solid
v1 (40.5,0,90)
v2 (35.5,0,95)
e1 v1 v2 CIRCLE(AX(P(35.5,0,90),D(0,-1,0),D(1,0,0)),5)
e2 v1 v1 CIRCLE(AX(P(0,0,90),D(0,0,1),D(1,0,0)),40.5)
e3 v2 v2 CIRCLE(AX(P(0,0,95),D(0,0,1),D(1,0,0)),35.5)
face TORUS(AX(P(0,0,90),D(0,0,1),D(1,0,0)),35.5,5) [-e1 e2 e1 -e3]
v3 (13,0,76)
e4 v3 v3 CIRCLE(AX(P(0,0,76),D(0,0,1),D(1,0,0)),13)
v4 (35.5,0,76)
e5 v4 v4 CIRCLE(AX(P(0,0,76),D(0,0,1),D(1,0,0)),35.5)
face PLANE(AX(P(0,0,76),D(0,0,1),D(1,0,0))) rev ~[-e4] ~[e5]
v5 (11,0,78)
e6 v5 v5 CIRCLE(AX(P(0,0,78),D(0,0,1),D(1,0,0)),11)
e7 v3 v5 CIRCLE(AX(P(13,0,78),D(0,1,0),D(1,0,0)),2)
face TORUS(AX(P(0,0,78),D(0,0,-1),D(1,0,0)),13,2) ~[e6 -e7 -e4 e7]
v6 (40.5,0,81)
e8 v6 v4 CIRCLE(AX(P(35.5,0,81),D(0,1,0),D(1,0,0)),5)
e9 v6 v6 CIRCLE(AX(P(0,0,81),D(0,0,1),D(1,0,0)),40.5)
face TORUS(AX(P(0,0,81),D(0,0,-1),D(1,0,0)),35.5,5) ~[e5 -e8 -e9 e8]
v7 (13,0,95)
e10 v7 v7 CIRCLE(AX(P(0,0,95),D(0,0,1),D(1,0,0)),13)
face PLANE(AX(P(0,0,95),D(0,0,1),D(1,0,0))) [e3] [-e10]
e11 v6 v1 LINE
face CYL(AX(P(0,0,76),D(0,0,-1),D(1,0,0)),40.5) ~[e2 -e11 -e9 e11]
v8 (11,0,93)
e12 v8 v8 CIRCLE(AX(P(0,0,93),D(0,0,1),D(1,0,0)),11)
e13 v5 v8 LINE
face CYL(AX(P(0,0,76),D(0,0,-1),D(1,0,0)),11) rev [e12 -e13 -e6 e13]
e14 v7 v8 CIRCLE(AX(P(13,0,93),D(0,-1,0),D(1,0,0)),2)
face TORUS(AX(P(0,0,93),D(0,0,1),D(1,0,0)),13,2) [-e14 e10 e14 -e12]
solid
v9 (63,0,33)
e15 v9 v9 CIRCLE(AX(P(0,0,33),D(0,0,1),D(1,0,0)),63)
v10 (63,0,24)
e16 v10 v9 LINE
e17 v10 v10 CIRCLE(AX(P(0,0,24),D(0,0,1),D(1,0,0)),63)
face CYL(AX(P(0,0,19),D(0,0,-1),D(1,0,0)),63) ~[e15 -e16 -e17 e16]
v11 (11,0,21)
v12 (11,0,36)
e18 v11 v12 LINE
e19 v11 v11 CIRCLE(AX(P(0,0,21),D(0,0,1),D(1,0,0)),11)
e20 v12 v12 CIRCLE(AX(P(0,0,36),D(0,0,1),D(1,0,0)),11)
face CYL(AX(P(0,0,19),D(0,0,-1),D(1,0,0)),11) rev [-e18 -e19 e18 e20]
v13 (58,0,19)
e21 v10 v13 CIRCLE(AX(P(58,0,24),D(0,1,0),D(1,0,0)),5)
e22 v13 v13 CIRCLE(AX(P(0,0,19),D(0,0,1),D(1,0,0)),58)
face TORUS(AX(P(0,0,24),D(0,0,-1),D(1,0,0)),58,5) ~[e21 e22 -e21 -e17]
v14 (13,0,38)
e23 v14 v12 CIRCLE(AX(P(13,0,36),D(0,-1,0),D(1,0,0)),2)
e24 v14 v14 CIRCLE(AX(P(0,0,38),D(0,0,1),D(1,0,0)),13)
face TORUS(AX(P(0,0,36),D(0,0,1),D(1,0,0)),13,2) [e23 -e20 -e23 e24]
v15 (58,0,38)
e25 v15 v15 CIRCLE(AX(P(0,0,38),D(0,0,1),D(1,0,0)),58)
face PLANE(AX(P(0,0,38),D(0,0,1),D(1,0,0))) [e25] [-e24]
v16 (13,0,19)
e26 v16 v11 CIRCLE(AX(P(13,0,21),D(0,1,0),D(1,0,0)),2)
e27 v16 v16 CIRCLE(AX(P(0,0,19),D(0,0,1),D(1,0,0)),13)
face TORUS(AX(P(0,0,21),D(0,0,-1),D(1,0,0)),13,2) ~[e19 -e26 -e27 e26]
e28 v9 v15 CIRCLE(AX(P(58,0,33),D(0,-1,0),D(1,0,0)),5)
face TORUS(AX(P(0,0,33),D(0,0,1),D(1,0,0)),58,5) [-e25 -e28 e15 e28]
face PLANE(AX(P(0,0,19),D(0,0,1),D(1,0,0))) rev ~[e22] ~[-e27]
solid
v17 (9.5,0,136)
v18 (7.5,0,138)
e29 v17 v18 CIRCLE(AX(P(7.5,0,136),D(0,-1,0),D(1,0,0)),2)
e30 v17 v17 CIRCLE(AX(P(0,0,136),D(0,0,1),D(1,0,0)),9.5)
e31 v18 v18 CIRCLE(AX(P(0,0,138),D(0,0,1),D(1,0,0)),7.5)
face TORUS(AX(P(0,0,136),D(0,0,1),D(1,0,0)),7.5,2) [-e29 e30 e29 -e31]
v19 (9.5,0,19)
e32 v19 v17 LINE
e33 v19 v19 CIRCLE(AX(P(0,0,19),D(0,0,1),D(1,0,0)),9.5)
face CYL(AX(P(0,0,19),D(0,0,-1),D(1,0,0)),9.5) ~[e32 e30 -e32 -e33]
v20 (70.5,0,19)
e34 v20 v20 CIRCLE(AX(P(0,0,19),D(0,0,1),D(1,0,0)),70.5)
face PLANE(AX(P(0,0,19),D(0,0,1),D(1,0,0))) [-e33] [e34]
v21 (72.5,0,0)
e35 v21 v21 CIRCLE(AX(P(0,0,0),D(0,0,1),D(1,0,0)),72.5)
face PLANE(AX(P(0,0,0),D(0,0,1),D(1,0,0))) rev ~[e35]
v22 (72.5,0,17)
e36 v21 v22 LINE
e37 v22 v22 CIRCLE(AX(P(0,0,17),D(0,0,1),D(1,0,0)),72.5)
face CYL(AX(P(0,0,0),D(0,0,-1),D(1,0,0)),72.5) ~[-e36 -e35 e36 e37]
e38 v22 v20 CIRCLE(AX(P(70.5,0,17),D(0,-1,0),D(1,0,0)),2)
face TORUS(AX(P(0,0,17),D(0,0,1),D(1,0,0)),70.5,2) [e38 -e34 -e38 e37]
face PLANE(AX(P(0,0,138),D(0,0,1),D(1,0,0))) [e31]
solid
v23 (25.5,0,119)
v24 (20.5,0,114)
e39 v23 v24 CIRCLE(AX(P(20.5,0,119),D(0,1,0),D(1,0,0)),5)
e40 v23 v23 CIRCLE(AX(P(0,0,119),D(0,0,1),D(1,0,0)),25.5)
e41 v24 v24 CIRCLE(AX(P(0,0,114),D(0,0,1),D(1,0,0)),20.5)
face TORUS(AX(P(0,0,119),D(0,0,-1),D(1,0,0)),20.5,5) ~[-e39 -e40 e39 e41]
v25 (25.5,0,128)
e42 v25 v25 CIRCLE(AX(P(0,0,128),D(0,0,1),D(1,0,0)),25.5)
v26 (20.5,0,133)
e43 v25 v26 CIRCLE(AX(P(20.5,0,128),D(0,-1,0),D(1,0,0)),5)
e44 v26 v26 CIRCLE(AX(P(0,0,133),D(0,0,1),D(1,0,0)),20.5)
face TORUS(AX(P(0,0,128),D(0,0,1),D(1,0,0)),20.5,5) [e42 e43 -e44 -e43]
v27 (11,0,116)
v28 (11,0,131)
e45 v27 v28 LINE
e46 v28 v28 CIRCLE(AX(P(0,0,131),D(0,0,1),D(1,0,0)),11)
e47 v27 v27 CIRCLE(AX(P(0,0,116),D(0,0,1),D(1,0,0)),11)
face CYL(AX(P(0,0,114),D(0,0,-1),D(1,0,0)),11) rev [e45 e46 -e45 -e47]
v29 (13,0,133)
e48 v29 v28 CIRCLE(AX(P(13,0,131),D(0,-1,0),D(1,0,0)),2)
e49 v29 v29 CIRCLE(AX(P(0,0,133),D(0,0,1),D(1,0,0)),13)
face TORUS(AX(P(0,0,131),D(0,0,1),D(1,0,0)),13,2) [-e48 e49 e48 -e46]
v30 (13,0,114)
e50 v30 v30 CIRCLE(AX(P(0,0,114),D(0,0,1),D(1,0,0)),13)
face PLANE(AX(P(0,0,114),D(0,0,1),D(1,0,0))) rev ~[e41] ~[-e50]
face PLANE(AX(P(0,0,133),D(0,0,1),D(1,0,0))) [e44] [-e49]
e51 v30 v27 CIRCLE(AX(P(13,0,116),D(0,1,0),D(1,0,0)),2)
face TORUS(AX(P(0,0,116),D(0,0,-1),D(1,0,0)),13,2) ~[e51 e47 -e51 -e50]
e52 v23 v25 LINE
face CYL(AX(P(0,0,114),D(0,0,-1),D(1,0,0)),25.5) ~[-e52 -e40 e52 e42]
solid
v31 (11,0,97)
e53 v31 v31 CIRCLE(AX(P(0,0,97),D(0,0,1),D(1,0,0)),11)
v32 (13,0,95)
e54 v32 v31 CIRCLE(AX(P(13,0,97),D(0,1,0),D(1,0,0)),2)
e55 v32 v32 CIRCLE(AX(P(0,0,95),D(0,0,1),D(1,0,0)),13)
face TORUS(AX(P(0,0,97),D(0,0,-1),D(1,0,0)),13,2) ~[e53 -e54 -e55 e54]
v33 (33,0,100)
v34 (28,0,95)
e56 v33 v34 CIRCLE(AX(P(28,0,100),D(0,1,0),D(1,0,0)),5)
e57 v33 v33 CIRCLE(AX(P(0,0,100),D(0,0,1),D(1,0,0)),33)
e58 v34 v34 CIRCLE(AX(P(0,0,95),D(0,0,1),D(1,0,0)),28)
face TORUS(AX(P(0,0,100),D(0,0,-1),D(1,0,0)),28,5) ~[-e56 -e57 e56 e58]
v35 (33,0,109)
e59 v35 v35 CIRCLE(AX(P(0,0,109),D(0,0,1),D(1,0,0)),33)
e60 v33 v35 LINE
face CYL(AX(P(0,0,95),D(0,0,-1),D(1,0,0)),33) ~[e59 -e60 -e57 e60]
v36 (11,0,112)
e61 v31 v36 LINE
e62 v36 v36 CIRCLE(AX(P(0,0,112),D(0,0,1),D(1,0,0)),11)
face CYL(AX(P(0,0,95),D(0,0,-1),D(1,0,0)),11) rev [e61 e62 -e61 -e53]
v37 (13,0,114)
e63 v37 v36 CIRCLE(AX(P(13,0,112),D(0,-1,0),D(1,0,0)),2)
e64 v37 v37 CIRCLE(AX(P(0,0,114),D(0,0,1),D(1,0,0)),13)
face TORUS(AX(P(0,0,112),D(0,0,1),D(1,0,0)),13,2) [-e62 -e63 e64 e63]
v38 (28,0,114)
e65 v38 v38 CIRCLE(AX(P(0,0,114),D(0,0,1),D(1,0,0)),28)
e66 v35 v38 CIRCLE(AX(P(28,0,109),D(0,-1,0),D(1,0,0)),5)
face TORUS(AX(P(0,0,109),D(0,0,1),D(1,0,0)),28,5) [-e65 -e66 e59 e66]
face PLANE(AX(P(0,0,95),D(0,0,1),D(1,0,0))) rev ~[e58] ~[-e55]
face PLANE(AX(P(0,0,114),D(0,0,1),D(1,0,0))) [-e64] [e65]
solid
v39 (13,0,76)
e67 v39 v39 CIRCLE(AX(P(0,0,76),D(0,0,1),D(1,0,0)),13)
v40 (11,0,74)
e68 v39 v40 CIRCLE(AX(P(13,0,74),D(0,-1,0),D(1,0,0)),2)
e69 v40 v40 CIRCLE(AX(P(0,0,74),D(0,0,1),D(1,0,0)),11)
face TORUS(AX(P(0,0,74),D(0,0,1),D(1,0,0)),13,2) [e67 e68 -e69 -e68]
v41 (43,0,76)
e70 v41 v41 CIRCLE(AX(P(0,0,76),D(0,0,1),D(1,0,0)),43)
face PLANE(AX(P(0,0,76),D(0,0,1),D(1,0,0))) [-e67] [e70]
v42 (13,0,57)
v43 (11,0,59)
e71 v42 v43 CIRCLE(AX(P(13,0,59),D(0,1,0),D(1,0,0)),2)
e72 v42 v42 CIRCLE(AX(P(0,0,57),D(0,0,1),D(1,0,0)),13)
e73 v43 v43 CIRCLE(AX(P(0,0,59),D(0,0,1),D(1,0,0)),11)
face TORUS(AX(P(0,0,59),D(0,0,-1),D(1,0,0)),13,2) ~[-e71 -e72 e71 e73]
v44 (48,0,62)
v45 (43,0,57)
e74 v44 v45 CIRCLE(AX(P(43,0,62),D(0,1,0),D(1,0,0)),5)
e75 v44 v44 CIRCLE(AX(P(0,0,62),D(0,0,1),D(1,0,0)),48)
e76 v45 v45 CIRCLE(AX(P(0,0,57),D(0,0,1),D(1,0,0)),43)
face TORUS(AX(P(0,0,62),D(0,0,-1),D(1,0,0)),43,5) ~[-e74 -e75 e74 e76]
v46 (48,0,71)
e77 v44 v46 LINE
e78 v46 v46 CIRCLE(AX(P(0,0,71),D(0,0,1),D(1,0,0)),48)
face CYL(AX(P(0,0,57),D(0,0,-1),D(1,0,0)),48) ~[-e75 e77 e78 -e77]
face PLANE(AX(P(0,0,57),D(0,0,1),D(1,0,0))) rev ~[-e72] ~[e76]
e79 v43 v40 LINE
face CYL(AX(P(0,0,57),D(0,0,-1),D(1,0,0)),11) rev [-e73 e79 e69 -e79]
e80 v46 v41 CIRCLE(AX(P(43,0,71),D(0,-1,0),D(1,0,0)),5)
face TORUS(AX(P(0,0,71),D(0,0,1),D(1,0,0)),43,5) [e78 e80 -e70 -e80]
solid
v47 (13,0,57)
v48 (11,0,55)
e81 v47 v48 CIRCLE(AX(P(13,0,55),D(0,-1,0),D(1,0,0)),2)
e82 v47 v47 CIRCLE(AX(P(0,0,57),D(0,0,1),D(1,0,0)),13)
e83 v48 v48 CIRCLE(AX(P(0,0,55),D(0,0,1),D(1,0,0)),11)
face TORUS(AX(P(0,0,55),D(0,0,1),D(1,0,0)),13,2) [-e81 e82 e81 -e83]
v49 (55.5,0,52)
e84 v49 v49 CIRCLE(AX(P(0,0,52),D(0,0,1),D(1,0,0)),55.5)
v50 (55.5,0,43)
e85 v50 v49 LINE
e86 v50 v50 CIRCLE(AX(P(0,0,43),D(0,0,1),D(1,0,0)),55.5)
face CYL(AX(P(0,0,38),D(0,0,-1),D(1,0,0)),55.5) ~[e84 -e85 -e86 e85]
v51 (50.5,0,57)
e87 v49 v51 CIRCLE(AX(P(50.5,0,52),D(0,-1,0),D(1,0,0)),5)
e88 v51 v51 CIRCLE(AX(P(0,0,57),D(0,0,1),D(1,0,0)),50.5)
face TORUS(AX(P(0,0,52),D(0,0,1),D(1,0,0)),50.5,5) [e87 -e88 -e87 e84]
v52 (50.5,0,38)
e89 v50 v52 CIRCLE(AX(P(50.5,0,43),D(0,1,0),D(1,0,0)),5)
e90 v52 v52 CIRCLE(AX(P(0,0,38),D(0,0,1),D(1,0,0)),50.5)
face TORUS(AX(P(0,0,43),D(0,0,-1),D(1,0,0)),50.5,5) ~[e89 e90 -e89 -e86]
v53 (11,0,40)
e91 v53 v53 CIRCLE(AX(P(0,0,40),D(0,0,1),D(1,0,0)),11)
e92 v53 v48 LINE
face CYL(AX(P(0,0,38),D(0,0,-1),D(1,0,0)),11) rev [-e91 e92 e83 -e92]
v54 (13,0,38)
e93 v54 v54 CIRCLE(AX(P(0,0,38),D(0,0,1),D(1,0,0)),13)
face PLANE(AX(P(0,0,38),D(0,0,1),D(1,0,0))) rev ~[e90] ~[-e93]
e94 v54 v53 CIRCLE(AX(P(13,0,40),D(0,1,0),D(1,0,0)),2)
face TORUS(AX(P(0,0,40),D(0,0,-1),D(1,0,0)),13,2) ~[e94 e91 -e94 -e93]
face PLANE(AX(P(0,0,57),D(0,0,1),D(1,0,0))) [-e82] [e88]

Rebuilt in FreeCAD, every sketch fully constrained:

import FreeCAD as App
import Part
import Sketcher
Q = App.Units.Quantity


def edges_at(feature, points):
    """Names of the edges that pass closest to the given points."""
    edges = feature.Shape.Edges
    near = lambda p: min(range(len(edges)), key=lambda i: edges[i].distToShape(Part.Vertex(*p))[0])
    return sorted({f"Edge{near(p) + 1}" for p in points})

doc = App.newDocument("Part")
body = doc.addObject("PartDesign::Body", "Body")

# Sketch on XY plane
sketch1 = body.newObject("Sketcher::SketchObject", "Sketch")
sketch1.AttachmentSupport = (doc.getObject("XY_Plane"), [""])
sketch1.MapMode = "FlatFace"
sketch1.addGeometry(Part.Circle(App.Vector(0, 0, 0), App.Vector(0, 0, 1), 72.5), False)
sketch1.addConstraint(Sketcher.Constraint("Coincident", 0, 3, -1, 1))
sketch1.addConstraint(Sketcher.Constraint("Diameter", 0, Q("145 mm")))
pad1 = body.newObject("PartDesign::Pad", "Pad")
pad1.Profile = sketch1
pad1.Length = 19

# Sketch on XY plane
sketch2 = body.newObject("Sketcher::SketchObject", "Sketch001")
sketch2.AttachmentSupport = (doc.getObject("XY_Plane"), [""])
sketch2.MapMode = "FlatFace"
sketch2.AttachmentOffset = App.Placement(App.Vector(0, 0, 19), App.Rotation())
sketch2.addGeometry(Part.Circle(App.Vector(0, 0, 0), App.Vector(0, 0, 1), 9.5), False)
sketch2.addConstraint(Sketcher.Constraint("Coincident", 0, 3, -1, 1))
sketch2.addConstraint(Sketcher.Constraint("Diameter", 0, Q("19 mm")))
pad2 = body.newObject("PartDesign::Pad", "Pad001")
pad2.Profile = sketch2
pad2.Length = 119
doc.recompute()

fillet = body.newObject("PartDesign::Fillet", "Fillet")
fillet.Base = (pad2, edges_at(pad2, [(-72.5, 0, 19), (-9.5, 0, 138)]))
fillet.Radius = 2
body2 = doc.addObject("PartDesign::Body", "Body001")

# Sketch on XY plane
sketch3 = body2.newObject("Sketcher::SketchObject", "Sketch002")
sketch3.AttachmentSupport = (doc.getObject("XY_Plane001"), [""])
sketch3.MapMode = "FlatFace"
sketch3.AttachmentOffset = App.Placement(App.Vector(0, 0, 19), App.Rotation())
sketch3.addGeometry(Part.Circle(App.Vector(0, 0, 0), App.Vector(0, 0, 1), 63), False)
sketch3.addGeometry(Part.Circle(App.Vector(0, 0, 0), App.Vector(0, 0, 1), 11), False)
sketch3.addConstraint(Sketcher.Constraint("Coincident", 0, 3, -1, 1))
sketch3.addConstraint(Sketcher.Constraint("Coincident", 1, 3, -1, 1))
sketch3.addConstraint(Sketcher.Constraint("Diameter", 0, Q("126 mm")))
sketch3.addConstraint(Sketcher.Constraint("Diameter", 1, Q("22 mm")))
pad3 = body2.newObject("PartDesign::Pad", "Pad002")
pad3.Profile = sketch3
pad3.Length = 19
doc.recompute()

fillet2 = body2.newObject("PartDesign::Fillet", "Fillet001")
fillet2.Base = (pad3, edges_at(pad3, [(63, 0, 28.5), (-63, 0, 19), (-63, 0, 38)]))
fillet2.Radius = 5
doc.recompute()

fillet3 = body2.newObject("PartDesign::Fillet", "Fillet002")
fillet3.Base = (fillet2, edges_at(fillet2, [(11, 0, 28.5), (-11, 0, 19), (-11, 0, 38)]))
fillet3.Radius = 2
body3 = doc.addObject("PartDesign::Body", "Body002")

# Sketch on XY plane
sketch4 = body3.newObject("Sketcher::SketchObject", "Sketch003")
sketch4.AttachmentSupport = (doc.getObject("XY_Plane002"), [""])
sketch4.MapMode = "FlatFace"
sketch4.AttachmentOffset = App.Placement(App.Vector(0, 0, 38), App.Rotation())
sketch4.addGeometry(Part.Circle(App.Vector(0, 0, 0), App.Vector(0, 0, 1), 55.5), False)
sketch4.addGeometry(Part.Circle(App.Vector(0, 0, 0), App.Vector(0, 0, 1), 11), False)
sketch4.addConstraint(Sketcher.Constraint("Coincident", 0, 3, -1, 1))
sketch4.addConstraint(Sketcher.Constraint("Coincident", 1, 3, -1, 1))
sketch4.addConstraint(Sketcher.Constraint("Diameter", 0, Q("111 mm")))
sketch4.addConstraint(Sketcher.Constraint("Diameter", 1, Q("22 mm")))
pad4 = body3.newObject("PartDesign::Pad", "Pad003")
pad4.Profile = sketch4
pad4.Length = 19
doc.recompute()

fillet4 = body3.newObject("PartDesign::Fillet", "Fillet003")
fillet4.Base = (pad4, edges_at(pad4, [(55.5, 0, 47.5), (-55.5, 0, 38), (-55.5, 0, 57)]))
fillet4.Radius = 5
doc.recompute()

fillet5 = body3.newObject("PartDesign::Fillet", "Fillet004")
fillet5.Base = (fillet4, edges_at(fillet4, [(-11, 0, 38), (11, 0, 47.5), (-11, 0, 57)]))
fillet5.Radius = 2
body4 = doc.addObject("PartDesign::Body", "Body003")

# Sketch on XY plane
sketch5 = body4.newObject("Sketcher::SketchObject", "Sketch004")
sketch5.AttachmentSupport = (doc.getObject("XY_Plane003"), [""])
sketch5.MapMode = "FlatFace"
sketch5.AttachmentOffset = App.Placement(App.Vector(0, 0, 57), App.Rotation())
sketch5.addGeometry(Part.Circle(App.Vector(0, 0, 0), App.Vector(0, 0, 1), 48), False)
sketch5.addGeometry(Part.Circle(App.Vector(0, 0, 0), App.Vector(0, 0, 1), 11), False)
sketch5.addConstraint(Sketcher.Constraint("Coincident", 0, 3, -1, 1))
sketch5.addConstraint(Sketcher.Constraint("Coincident", 1, 3, -1, 1))
sketch5.addConstraint(Sketcher.Constraint("Diameter", 0, Q("96 mm")))
sketch5.addConstraint(Sketcher.Constraint("Diameter", 1, Q("22 mm")))
pad5 = body4.newObject("PartDesign::Pad", "Pad004")
pad5.Profile = sketch5
pad5.Length = 19
doc.recompute()

fillet6 = body4.newObject("PartDesign::Fillet", "Fillet005")
fillet6.Base = (pad5, edges_at(pad5, [(48, 0, 66.5), (-48, 0, 57), (-48, 0, 76)]))
fillet6.Radius = 5
doc.recompute()

fillet7 = body4.newObject("PartDesign::Fillet", "Fillet006")
fillet7.Base = (fillet6, edges_at(fillet6, [(-11, 0, 57), (-11, 0, 76), (11, 0, 66.5)]))
fillet7.Radius = 2
body5 = doc.addObject("PartDesign::Body", "Body004")

# Sketch on XY plane
sketch6 = body5.newObject("Sketcher::SketchObject", "Sketch005")
sketch6.AttachmentSupport = (doc.getObject("XY_Plane004"), [""])
sketch6.MapMode = "FlatFace"
sketch6.AttachmentOffset = App.Placement(App.Vector(0, 0, 76), App.Rotation())
sketch6.addGeometry(Part.Circle(App.Vector(0, 0, 0), App.Vector(0, 0, 1), 40.5), False)
sketch6.addGeometry(Part.Circle(App.Vector(0, 0, 0), App.Vector(0, 0, 1), 11), False)
sketch6.addConstraint(Sketcher.Constraint("Coincident", 0, 3, -1, 1))
sketch6.addConstraint(Sketcher.Constraint("Coincident", 1, 3, -1, 1))
sketch6.addConstraint(Sketcher.Constraint("Diameter", 0, Q("81 mm")))
sketch6.addConstraint(Sketcher.Constraint("Diameter", 1, Q("22 mm")))
pad6 = body5.newObject("PartDesign::Pad", "Pad005")
pad6.Profile = sketch6
pad6.Length = 19
doc.recompute()

fillet8 = body5.newObject("PartDesign::Fillet", "Fillet007")
fillet8.Base = (pad6, edges_at(pad6, [(40.5, 0, 85.5), (-40.5, 0, 76), (-40.5, 0, 95)]))
fillet8.Radius = 5
doc.recompute()

fillet9 = body5.newObject("PartDesign::Fillet", "Fillet008")
fillet9.Base = (fillet8, edges_at(fillet8, [(-11, 0, 95), (11, 0, 85.5), (-11, 0, 76)]))
fillet9.Radius = 2
body6 = doc.addObject("PartDesign::Body", "Body005")

# Sketch on XY plane
sketch7 = body6.newObject("Sketcher::SketchObject", "Sketch006")
sketch7.AttachmentSupport = (doc.getObject("XY_Plane005"), [""])
sketch7.MapMode = "FlatFace"
sketch7.AttachmentOffset = App.Placement(App.Vector(0, 0, 95), App.Rotation())
sketch7.addGeometry(Part.Circle(App.Vector(0, 0, 0), App.Vector(0, 0, 1), 33), False)
sketch7.addGeometry(Part.Circle(App.Vector(0, 0, 0), App.Vector(0, 0, 1), 11), False)
sketch7.addConstraint(Sketcher.Constraint("Coincident", 0, 3, -1, 1))
sketch7.addConstraint(Sketcher.Constraint("Coincident", 1, 3, -1, 1))
sketch7.addConstraint(Sketcher.Constraint("Diameter", 0, Q("66 mm")))
sketch7.addConstraint(Sketcher.Constraint("Diameter", 1, Q("22 mm")))
pad7 = body6.newObject("PartDesign::Pad", "Pad006")
pad7.Profile = sketch7
pad7.Length = 19
doc.recompute()

fillet10 = body6.newObject("PartDesign::Fillet", "Fillet009")
fillet10.Base = (pad7, edges_at(pad7, [(33, 0, 104.5), (-33, 0, 95), (-33, 0, 114)]))
fillet10.Radius = 5
doc.recompute()

fillet11 = body6.newObject("PartDesign::Fillet", "Fillet010")
fillet11.Base = (fillet10, edges_at(fillet10, [(-11, 0, 114), (11, 0, 104.5), (-11, 0, 95)]))
fillet11.Radius = 2
body7 = doc.addObject("PartDesign::Body", "Body006")

# Sketch on XY plane
sketch8 = body7.newObject("Sketcher::SketchObject", "Sketch007")
sketch8.AttachmentSupport = (doc.getObject("XY_Plane006"), [""])
sketch8.MapMode = "FlatFace"
sketch8.AttachmentOffset = App.Placement(App.Vector(0, 0, 114), App.Rotation())
sketch8.addGeometry(Part.Circle(App.Vector(0, 0, 0), App.Vector(0, 0, 1), 25.5), False)
sketch8.addGeometry(Part.Circle(App.Vector(0, 0, 0), App.Vector(0, 0, 1), 11), False)
sketch8.addConstraint(Sketcher.Constraint("Coincident", 0, 3, -1, 1))
sketch8.addConstraint(Sketcher.Constraint("Coincident", 1, 3, -1, 1))
sketch8.addConstraint(Sketcher.Constraint("Diameter", 0, Q("51 mm")))
sketch8.addConstraint(Sketcher.Constraint("Diameter", 1, Q("22 mm")))
pad8 = body7.newObject("PartDesign::Pad", "Pad007")
pad8.Profile = sketch8
pad8.Length = 19
doc.recompute()

fillet12 = body7.newObject("PartDesign::Fillet", "Fillet011")
fillet12.Base = (pad8, edges_at(pad8, [(25.5, 0, 123.5), (-25.5, 0, 114), (-25.5, 0, 133)]))
fillet12.Radius = 5
doc.recompute()

fillet13 = body7.newObject("PartDesign::Fillet", "Fillet012")
fillet13.Base = (fillet12, edges_at(fillet12, [(11, 0, 123.5), (-11, 0, 114), (-11, 0, 133)]))
fillet13.Radius = 2

doc.recompute()
